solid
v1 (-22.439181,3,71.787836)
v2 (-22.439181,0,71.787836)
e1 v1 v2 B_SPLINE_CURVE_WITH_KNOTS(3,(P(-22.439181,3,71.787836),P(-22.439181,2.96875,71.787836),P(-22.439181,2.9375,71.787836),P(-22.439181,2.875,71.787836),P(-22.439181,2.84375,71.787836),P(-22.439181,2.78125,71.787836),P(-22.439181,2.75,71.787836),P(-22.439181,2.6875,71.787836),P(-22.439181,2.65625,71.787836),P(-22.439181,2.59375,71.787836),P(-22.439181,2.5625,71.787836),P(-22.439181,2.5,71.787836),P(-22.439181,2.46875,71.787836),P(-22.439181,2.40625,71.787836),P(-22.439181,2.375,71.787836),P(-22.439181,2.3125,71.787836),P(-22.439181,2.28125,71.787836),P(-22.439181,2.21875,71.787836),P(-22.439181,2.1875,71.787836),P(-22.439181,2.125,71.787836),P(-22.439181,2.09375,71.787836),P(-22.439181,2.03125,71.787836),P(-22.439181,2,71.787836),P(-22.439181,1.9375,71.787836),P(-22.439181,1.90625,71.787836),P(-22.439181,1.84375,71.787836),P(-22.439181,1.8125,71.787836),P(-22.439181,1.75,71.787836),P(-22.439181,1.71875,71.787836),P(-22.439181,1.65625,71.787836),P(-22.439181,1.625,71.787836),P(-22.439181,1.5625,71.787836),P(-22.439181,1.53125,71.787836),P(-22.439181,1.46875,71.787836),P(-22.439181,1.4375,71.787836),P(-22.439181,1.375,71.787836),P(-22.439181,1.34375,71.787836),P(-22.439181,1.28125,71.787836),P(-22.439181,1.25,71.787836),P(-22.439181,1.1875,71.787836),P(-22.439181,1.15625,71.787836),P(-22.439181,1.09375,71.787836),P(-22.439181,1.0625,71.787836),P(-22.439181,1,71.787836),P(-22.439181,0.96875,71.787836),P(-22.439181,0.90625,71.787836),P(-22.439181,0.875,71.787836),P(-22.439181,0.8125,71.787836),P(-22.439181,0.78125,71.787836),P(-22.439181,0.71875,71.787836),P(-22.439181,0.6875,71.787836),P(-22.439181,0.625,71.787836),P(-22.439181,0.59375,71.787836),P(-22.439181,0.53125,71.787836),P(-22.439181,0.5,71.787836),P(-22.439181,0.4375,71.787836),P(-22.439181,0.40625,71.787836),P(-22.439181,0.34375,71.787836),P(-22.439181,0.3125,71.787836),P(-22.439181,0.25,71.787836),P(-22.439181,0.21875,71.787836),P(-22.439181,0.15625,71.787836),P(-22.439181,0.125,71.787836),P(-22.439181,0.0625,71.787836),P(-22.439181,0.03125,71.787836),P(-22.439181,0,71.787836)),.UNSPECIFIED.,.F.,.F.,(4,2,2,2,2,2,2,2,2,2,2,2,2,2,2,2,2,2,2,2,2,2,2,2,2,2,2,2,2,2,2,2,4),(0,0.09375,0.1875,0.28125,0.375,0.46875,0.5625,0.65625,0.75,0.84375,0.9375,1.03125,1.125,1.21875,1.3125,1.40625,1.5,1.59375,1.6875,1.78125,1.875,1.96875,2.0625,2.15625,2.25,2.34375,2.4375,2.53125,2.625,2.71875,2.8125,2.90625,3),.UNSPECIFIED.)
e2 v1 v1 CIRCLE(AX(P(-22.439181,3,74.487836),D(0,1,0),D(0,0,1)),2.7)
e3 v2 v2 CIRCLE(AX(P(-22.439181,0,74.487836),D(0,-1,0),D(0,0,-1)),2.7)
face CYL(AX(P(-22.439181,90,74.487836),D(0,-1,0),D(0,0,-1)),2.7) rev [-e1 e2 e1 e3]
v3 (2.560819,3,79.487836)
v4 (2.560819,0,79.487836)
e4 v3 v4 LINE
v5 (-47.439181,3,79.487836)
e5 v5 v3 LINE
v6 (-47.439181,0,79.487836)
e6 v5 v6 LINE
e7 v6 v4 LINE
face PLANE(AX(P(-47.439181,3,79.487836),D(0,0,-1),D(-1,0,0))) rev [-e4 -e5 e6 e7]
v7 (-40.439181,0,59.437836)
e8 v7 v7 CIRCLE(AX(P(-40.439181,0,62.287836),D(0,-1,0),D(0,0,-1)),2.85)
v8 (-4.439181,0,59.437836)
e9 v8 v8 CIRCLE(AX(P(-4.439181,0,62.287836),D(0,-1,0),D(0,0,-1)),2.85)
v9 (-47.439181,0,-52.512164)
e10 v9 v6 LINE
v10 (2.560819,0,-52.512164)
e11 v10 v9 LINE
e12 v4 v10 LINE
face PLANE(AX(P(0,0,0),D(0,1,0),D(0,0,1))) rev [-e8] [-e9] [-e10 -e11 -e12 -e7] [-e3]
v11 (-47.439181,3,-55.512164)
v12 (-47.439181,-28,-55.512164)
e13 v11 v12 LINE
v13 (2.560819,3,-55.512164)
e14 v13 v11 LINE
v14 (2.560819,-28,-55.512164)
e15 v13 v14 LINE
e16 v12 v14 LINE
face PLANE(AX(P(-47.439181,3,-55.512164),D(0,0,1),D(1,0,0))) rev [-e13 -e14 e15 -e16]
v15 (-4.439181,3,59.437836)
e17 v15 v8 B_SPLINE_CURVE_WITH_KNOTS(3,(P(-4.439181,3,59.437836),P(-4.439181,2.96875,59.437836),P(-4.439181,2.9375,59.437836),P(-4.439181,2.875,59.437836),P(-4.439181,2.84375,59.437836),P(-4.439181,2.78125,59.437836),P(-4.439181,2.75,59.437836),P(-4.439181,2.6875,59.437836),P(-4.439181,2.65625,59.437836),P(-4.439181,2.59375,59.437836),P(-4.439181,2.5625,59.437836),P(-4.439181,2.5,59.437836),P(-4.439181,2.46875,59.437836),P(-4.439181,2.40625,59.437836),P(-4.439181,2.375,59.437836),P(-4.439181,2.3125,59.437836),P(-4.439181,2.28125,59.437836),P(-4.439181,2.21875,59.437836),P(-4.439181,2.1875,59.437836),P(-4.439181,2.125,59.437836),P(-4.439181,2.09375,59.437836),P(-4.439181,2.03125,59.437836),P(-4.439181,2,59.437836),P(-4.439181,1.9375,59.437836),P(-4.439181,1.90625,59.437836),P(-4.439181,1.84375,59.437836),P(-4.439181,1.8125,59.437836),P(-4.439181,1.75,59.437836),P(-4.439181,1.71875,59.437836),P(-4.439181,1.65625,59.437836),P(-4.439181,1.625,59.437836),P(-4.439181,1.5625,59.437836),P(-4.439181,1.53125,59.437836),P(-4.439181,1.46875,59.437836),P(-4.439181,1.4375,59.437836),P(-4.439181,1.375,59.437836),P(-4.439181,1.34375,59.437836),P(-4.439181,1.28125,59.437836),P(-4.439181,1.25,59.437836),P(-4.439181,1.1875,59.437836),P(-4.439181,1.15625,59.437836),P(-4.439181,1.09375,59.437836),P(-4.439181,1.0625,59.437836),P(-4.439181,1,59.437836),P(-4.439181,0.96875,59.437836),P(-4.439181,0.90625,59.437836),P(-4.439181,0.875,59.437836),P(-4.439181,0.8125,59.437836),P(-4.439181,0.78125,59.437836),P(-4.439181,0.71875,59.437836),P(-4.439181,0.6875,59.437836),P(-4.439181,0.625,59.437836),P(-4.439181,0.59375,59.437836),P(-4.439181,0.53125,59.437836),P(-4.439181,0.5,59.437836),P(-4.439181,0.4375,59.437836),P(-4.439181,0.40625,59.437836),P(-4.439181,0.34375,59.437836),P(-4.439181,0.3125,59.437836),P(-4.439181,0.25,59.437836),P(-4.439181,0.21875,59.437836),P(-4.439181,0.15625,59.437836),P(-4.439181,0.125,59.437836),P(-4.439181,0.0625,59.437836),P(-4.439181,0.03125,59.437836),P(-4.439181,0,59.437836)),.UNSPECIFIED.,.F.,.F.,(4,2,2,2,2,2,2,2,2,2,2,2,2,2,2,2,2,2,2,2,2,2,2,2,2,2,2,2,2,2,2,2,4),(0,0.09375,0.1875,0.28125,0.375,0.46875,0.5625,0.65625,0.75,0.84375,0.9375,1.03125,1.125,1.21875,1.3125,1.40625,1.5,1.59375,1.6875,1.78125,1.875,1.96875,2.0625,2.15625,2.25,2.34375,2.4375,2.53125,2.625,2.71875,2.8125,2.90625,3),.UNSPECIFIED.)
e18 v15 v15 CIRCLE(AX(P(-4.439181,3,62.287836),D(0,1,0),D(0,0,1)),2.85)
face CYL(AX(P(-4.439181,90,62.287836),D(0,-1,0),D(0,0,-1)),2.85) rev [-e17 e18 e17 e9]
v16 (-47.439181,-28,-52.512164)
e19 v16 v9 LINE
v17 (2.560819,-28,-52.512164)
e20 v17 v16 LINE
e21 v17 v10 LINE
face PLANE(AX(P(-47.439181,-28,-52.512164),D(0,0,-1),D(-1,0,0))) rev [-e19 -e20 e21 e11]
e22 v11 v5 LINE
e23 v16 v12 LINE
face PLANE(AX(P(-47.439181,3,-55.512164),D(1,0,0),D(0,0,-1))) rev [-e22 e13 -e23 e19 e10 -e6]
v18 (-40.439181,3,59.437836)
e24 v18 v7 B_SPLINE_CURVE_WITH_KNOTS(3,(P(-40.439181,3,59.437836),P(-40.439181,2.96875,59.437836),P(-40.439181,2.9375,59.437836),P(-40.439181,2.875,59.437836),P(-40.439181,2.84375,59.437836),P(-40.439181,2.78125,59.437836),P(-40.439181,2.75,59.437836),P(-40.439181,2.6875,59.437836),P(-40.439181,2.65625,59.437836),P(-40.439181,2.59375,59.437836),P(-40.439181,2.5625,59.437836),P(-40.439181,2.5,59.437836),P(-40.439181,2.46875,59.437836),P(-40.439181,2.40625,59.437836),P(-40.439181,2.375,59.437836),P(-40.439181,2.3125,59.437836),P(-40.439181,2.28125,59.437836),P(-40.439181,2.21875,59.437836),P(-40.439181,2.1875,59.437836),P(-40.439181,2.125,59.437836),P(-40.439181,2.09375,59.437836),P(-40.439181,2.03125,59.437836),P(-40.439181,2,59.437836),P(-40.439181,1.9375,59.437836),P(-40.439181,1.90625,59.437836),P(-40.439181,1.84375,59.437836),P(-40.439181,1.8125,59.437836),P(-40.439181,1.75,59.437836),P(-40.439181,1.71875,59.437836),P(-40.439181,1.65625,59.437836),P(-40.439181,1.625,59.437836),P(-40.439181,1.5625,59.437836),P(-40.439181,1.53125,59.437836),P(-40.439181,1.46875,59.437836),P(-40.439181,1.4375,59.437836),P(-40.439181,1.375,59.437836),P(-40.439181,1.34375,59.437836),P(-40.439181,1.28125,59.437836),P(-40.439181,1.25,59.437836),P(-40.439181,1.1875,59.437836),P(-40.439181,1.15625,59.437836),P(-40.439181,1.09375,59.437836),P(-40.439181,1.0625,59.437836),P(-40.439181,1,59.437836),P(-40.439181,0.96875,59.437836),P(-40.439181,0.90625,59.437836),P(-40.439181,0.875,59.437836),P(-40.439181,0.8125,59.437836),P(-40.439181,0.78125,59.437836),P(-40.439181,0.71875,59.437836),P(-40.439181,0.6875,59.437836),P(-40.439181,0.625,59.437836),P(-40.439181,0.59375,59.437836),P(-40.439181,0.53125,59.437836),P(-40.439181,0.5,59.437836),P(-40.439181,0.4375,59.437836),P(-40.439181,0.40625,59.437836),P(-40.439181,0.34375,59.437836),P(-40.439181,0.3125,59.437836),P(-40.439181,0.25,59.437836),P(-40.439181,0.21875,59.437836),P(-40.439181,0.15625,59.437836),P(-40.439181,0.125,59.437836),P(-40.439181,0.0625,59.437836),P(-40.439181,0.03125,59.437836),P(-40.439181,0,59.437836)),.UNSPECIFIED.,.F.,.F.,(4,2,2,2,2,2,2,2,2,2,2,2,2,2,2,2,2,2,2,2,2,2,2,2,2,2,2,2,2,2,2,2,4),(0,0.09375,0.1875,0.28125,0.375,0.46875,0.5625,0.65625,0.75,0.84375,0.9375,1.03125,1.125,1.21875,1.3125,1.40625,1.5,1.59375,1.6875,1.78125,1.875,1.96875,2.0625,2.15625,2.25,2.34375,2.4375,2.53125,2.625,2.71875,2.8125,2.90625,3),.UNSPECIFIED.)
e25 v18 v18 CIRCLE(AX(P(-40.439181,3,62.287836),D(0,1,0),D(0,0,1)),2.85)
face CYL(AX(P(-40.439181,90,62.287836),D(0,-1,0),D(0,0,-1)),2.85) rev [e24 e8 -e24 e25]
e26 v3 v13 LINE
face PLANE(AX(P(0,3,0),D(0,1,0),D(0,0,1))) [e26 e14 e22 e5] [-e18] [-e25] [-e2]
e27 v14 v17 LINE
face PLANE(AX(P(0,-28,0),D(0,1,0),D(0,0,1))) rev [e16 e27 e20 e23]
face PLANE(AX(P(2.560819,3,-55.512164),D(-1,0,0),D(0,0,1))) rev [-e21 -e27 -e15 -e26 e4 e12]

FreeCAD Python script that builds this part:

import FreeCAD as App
import Part
import Sketcher
Q = App.Units.Quantity

doc = App.newDocument("Part")
params = doc.addObject("Spreadsheet::Sheet", "Params")
for row, (alias, value) in enumerate([
    ("sketch1_width", "50 mm"),
    ("sketch1_height", "135 mm"),
    ("pad1_length", "3 mm"),
    ("sketch2_width", "50 mm"),
    ("sketch2_height", "3 mm"),
    ("pad2_length", "28 mm"),
    ("sketch3_diameter", "5.4 mm"),
    ("pocket1_length", "90 mm"),
    ("sketch4_diameter", "5.7 mm"),
    ("pocket2_length", "90 mm"),
], start=1):
    params.set(f"A{row}", alias)
    params.set(f"B{row}", "=" + value)
    params.setAlias(f"B{row}", alias)

body = doc.addObject("PartDesign::Body", "Body")

# Sketch on XZ plane
sketch1 = doc.addObject("Sketcher::SketchObject", "Sketch")
body.addObject(sketch1)
sketch1.AttachmentSupport = (doc.XZ_Plane, [""])
sketch1.MapMode = "FlatFace"
sketch1.addGeometry([
    Part.LineSegment(App.Vector(-47, -56, 0), App.Vector(-47, 79, 0)),
    Part.LineSegment(App.Vector(-47, 79, 0), App.Vector(3, 79, 0)),
    Part.LineSegment(App.Vector(3, 79, 0), App.Vector(3, -56, 0)),
    Part.LineSegment(App.Vector(3, -56, 0), App.Vector(-47, -56, 0)),
], False)
sketch1.addConstraint([
    Sketcher.Constraint("Coincident", 0, 2, 1, 1),
    Sketcher.Constraint("Coincident", 1, 2, 2, 1),
    Sketcher.Constraint("Coincident", 2, 2, 3, 1),
    Sketcher.Constraint("Coincident", 3, 2, 0, 1),
    Sketcher.Constraint("Vertical", 0),
    Sketcher.Constraint("Horizontal", 1),
    Sketcher.Constraint("Vertical", 2),
    Sketcher.Constraint("Horizontal", 3),
    Sketcher.Constraint("DistanceX", 1, 1, 1, 2, Q("50 mm")),
    Sketcher.Constraint("DistanceY", 0, 1, 0, 2, Q("135 mm")),
    Sketcher.Constraint("DistanceX", 0, 2, -1, 1, Q("47.439181 mm")),
    Sketcher.Constraint("DistanceY", -1, 1, 0, 2, Q("79.487836 mm")),
])
sketch1.setExpression("Constraints[8]", "Params.sketch1_width")
sketch1.setExpression("Constraints[9]", "Params.sketch1_height")
pad1 = doc.addObject("PartDesign::Pad", "Pad")
body.addObject(pad1)
pad1.Profile = sketch1
pad1.setExpression("Length", "Params.pad1_length")
pad1.Reversed = True

# Sketch on XZ plane
sketch2 = doc.addObject("Sketcher::SketchObject", "Sketch001")
body.addObject(sketch2)
sketch2.AttachmentSupport = (doc.XZ_Plane, [""])
sketch2.MapMode = "FlatFace"
sketch2.addGeometry([
    Part.LineSegment(App.Vector(-47.4, -52.5, 0), App.Vector(-47.4, -55.5, 0)),
    Part.LineSegment(App.Vector(-47.4, -55.5, 0), App.Vector(2.6, -55.5, 0)),
    Part.LineSegment(App.Vector(2.6, -55.5, 0), App.Vector(2.6, -52.5, 0)),
    Part.LineSegment(App.Vector(2.6, -52.5, 0), App.Vector(-47.4, -52.5, 0)),
], False)
sketch2.addConstraint([
    Sketcher.Constraint("Coincident", 0, 2, 1, 1),
    Sketcher.Constraint("Coincident", 1, 2, 2, 1),
    Sketcher.Constraint("Coincident", 2, 2, 3, 1),
    Sketcher.Constraint("Coincident", 3, 2, 0, 1),
    Sketcher.Constraint("Vertical", 0),
    Sketcher.Constraint("Horizontal", 1),
    Sketcher.Constraint("Vertical", 2),
    Sketcher.Constraint("Horizontal", 3),
    Sketcher.Constraint("DistanceX", 1, 1, 1, 2, Q("50 mm")),
    Sketcher.Constraint("DistanceY", 0, 2, 0, 1, Q("3 mm")),
    Sketcher.Constraint("DistanceX", 0, 2, -1, 1, Q("47.439181 mm")),
    Sketcher.Constraint("DistanceY", 0, 2, -1, 1, Q("55.512164 mm")),
])
sketch2.setExpression("Constraints[8]", "Params.sketch2_width")
sketch2.setExpression("Constraints[9]", "Params.sketch2_height")
pad2 = doc.addObject("PartDesign::Pad", "Pad001")
body.addObject(pad2)
pad2.Profile = sketch2
pad2.setExpression("Length", "Params.pad2_length")

# Sketch on XZ plane
sketch3 = doc.addObject("Sketcher::SketchObject", "Sketch002")
body.addObject(sketch3)
sketch3.AttachmentSupport = (doc.XZ_Plane, [""])
sketch3.MapMode = "FlatFace"
sketch3.addGeometry(Part.Circle(App.Vector(-22.4, 74.5, 0), App.Vector(0, 0, 1), 2.7), False)
sketch3.addConstraint([
    Sketcher.Constraint("Diameter", 0, Q("5.4 mm")),
    Sketcher.Constraint("DistanceX", 0, 3, -1, 1, Q("22.439181 mm")),
    Sketcher.Constraint("DistanceY", -1, 1, 0, 3, Q("74.487836 mm")),
])
sketch3.setExpression("Constraints[0]", "Params.sketch3_diameter")
pocket1 = doc.addObject("PartDesign::Pocket", "Pocket")
body.addObject(pocket1)
pocket1.Profile = sketch3
pocket1.setExpression("Length", "Params.pocket1_length")

# Sketch on XZ plane
sketch4 = doc.addObject("Sketcher::SketchObject", "Sketch003")
body.addObject(sketch4)
sketch4.AttachmentSupport = (doc.XZ_Plane, [""])
sketch4.MapMode = "FlatFace"
sketch4.addGeometry([
    Part.Circle(App.Vector(-40.4, 62.3, 0), App.Vector(0, 0, 1), 2.9),
    Part.Circle(App.Vector(-4.4, 62.3, 0), App.Vector(0, 0, 1), 2.9),
], False)
sketch4.addConstraint([
    Sketcher.Constraint("Equal", 0, 1),
    Sketcher.Constraint("Horizontal", 0, 3, 1, 3),
    Sketcher.Constraint("Diameter", 0, Q("5.7 mm")),
    Sketcher.Constraint("DistanceX", 0, 3, 1, 3, Q("36 mm")),
    Sketcher.Constraint("DistanceX", 0, 3, -1, 1, Q("40.439181 mm")),
    Sketcher.Constraint("DistanceY", -1, 1, 0, 3, Q("62.287836 mm")),
])
sketch4.setExpression("Constraints[2]", "Params.sketch4_diameter")
pocket2 = doc.addObject("PartDesign::Pocket", "Pocket001")
body.addObject(pocket2)
pocket2.Profile = sketch4
pocket2.setExpression("Length", "Params.pocket2_length")

doc.recompute()
